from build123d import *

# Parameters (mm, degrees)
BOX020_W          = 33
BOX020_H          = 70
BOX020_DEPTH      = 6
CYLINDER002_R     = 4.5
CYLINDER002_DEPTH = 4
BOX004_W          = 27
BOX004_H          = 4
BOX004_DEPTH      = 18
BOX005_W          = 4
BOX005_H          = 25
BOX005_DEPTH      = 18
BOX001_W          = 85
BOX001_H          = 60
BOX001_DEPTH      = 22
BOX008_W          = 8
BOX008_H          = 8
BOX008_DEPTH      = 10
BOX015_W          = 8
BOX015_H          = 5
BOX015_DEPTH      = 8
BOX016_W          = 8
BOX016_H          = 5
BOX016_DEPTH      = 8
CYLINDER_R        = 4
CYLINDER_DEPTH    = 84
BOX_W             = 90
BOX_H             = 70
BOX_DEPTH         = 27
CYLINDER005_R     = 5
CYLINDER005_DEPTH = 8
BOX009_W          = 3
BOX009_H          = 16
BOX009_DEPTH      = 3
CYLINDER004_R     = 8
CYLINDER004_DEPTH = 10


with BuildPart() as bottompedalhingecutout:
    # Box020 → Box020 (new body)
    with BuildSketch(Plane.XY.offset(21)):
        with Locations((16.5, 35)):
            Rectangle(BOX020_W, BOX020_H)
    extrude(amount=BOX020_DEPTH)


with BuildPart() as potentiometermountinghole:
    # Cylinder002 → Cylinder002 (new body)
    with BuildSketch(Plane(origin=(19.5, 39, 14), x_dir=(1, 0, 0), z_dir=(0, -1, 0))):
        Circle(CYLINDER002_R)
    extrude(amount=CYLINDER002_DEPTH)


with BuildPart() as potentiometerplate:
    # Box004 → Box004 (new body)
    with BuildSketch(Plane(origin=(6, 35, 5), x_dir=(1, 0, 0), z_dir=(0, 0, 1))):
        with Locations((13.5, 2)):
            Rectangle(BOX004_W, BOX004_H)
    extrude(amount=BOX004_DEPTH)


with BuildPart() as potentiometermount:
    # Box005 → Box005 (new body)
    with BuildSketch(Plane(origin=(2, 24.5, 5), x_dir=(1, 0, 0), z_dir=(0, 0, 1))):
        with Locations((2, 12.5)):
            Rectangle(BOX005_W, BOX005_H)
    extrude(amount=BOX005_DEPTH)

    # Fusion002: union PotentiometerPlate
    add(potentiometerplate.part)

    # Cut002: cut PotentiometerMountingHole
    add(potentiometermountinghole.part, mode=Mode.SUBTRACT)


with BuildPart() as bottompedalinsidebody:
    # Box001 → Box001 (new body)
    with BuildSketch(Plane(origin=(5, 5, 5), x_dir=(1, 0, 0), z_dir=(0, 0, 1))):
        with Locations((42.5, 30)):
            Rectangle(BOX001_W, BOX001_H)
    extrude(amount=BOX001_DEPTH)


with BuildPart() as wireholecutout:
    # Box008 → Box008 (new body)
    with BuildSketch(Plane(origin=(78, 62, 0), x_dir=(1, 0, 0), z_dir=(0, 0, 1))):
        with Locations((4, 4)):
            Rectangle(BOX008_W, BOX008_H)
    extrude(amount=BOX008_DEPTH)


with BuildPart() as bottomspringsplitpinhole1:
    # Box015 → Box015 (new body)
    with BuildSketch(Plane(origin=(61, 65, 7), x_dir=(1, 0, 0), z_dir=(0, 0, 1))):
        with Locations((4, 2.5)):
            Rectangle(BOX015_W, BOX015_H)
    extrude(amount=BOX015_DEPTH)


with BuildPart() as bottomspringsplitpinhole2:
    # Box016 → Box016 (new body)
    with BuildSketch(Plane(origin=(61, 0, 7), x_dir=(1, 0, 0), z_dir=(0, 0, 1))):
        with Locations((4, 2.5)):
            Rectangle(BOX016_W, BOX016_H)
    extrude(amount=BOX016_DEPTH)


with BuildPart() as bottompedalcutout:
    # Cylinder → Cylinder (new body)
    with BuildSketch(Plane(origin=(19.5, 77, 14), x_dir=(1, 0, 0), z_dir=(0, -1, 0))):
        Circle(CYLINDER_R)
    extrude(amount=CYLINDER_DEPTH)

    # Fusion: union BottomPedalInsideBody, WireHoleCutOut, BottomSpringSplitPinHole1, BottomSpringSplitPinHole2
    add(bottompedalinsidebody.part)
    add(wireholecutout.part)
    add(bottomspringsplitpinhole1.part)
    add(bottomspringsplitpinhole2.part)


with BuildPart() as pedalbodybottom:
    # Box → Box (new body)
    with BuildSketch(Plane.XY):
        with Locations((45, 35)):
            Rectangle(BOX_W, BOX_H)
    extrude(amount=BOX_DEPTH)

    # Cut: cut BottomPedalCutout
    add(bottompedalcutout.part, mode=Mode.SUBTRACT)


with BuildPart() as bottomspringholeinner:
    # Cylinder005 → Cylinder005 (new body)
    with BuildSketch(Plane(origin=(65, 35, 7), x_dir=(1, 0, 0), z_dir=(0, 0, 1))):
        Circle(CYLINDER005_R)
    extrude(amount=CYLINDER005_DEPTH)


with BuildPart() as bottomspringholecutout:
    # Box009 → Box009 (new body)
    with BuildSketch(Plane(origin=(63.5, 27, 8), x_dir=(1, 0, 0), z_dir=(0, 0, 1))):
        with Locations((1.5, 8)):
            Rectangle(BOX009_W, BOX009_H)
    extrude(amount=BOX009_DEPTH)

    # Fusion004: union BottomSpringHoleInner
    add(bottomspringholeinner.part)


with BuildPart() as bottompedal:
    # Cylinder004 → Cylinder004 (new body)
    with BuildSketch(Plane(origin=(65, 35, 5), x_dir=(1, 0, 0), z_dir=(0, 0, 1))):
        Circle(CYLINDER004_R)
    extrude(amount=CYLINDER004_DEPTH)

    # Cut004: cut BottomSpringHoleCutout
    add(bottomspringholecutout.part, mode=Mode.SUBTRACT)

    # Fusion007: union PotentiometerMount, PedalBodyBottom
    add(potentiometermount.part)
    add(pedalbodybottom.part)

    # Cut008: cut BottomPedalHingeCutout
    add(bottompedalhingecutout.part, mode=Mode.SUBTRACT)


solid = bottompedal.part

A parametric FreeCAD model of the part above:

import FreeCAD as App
import Part
import Sketcher
from FreeCAD import Vector
Q = App.Units.Quantity

doc = App.newDocument("Part")
body = doc.addObject("PartDesign::Body", "Body")

# Sketch on XY plane
sketch1 = body.newObject("Sketcher::SketchObject", "Sketch")
sketch1.AttachmentSupport = (doc.getObject("XY_Plane"), [""])
sketch1.MapMode = "FlatFace"
sketch1.AttachmentOffset = App.Placement(Vector(0, 0, 21), App.Rotation())
sketch1.addGeometry(Part.LineSegment(Vector(0, 70, 0), Vector(0, 0, 0)), False)
sketch1.addGeometry(Part.LineSegment(Vector(0, 0, 0), Vector(33, 0, 0)), False)
sketch1.addGeometry(Part.LineSegment(Vector(33, 0, 0), Vector(33, 70, 0)), False)
sketch1.addGeometry(Part.LineSegment(Vector(33, 70, 0), Vector(0, 70, 0)), False)
sketch1.addConstraint(Sketcher.Constraint("Coincident", 0, 2, 1, 1))
sketch1.addConstraint(Sketcher.Constraint("Coincident", 1, 2, 2, 1))
sketch1.addConstraint(Sketcher.Constraint("Coincident", 2, 2, 3, 1))
sketch1.addConstraint(Sketcher.Constraint("Coincident", 3, 2, 0, 1))
sketch1.addConstraint(Sketcher.Constraint("Vertical", 0))
sketch1.addConstraint(Sketcher.Constraint("Horizontal", 1))
sketch1.addConstraint(Sketcher.Constraint("Vertical", 2))
sketch1.addConstraint(Sketcher.Constraint("Horizontal", 3))
sketch1.addConstraint(Sketcher.Constraint("Coincident", 0, 2, -1, 1))
sketch1.addConstraint(Sketcher.Constraint("DistanceX", 1, 1, 1, 2, Q("33 mm")))
sketch1.addConstraint(Sketcher.Constraint("DistanceY", 0, 2, 0, 1, Q("70 mm")))
pad1 = body.newObject("PartDesign::Pad", "Pad")
pad1.Profile = sketch1
pad1.Length = 6
body2 = doc.addObject("PartDesign::Body", "Body001")

# Sketch on XZ plane
sketch2 = body2.newObject("Sketcher::SketchObject", "Sketch001")
sketch2.AttachmentSupport = (doc.getObject("XZ_Plane001"), [""])
sketch2.MapMode = "FlatFace"
sketch2.AttachmentOffset = App.Placement(Vector(0, 0, -39), App.Rotation())
sketch2.addGeometry(Part.Circle(Vector(19.5, 14, 0), Vector(0, 0, 1), 4.5), False)
sketch2.addConstraint(Sketcher.Constraint("Diameter", 0, Q("9 mm")))
sketch2.addConstraint(Sketcher.Constraint("DistanceY", -1, 1, 0, 3, Q("14 mm")))
sketch2.addConstraint(Sketcher.Constraint("DistanceX", -1, 1, 0, 3, Q("19.5 mm")))
pad2 = body2.newObject("PartDesign::Pad", "Pad001")
pad2.Profile = sketch2
pad2.Length = 4
body3 = doc.addObject("PartDesign::Body", "Body002")

# Sketch on XY plane
sketch3 = body3.newObject("Sketcher::SketchObject", "Sketch002")
sketch3.AttachmentSupport = (doc.getObject("XY_Plane002"), [""])
sketch3.MapMode = "FlatFace"
sketch3.AttachmentOffset = App.Placement(Vector(0, 0, 5), App.Rotation())
sketch3.addGeometry(Part.LineSegment(Vector(6, 39, 0), Vector(6, 35, 0)), False)
sketch3.addGeometry(Part.LineSegment(Vector(6, 35, 0), Vector(33, 35, 0)), False)
sketch3.addGeometry(Part.LineSegment(Vector(33, 35, 0), Vector(33, 39, 0)), False)
sketch3.addGeometry(Part.LineSegment(Vector(33, 39, 0), Vector(6, 39, 0)), False)
sketch3.addConstraint(Sketcher.Constraint("Coincident", 0, 2, 1, 1))
sketch3.addConstraint(Sketcher.Constraint("Coincident", 1, 2, 2, 1))
sketch3.addConstraint(Sketcher.Constraint("Coincident", 2, 2, 3, 1))
sketch3.addConstraint(Sketcher.Constraint("Coincident", 3, 2, 0, 1))
sketch3.addConstraint(Sketcher.Constraint("Vertical", 0))
sketch3.addConstraint(Sketcher.Constraint("Horizontal", 1))
sketch3.addConstraint(Sketcher.Constraint("Vertical", 2))
sketch3.addConstraint(Sketcher.Constraint("Horizontal", 3))
sketch3.addConstraint(Sketcher.Constraint("DistanceX", 1, 1, 1, 2, Q("27 mm")))
sketch3.addConstraint(Sketcher.Constraint("DistanceY", 0, 2, 0, 1, Q("4 mm")))
sketch3.addConstraint(Sketcher.Constraint("DistanceX", -1, 1, 0, 2, Q("6 mm")))
sketch3.addConstraint(Sketcher.Constraint("DistanceY", -1, 1, 0, 2, Q("35 mm")))
pad3 = body3.newObject("PartDesign::Pad", "Pad002")
pad3.Profile = sketch3
pad3.Length = 18
body4 = doc.addObject("PartDesign::Body", "Body003")

# Sketch on XY plane
sketch4 = body4.newObject("Sketcher::SketchObject", "Sketch003")
sketch4.AttachmentSupport = (doc.getObject("XY_Plane003"), [""])
sketch4.MapMode = "FlatFace"
sketch4.AttachmentOffset = App.Placement(Vector(0, 0, 5), App.Rotation())
sketch4.addGeometry(Part.LineSegment(Vector(2, 49.5, 0), Vector(2, 24.5, 0)), False)
sketch4.addGeometry(Part.LineSegment(Vector(2, 24.5, 0), Vector(6, 24.5, 0)), False)
sketch4.addGeometry(Part.LineSegment(Vector(6, 24.5, 0), Vector(6, 49.5, 0)), False)
sketch4.addGeometry(Part.LineSegment(Vector(6, 49.5, 0), Vector(2, 49.5, 0)), False)
sketch4.addConstraint(Sketcher.Constraint("Coincident", 0, 2, 1, 1))
sketch4.addConstraint(Sketcher.Constraint("Coincident", 1, 2, 2, 1))
sketch4.addConstraint(Sketcher.Constraint("Coincident", 2, 2, 3, 1))
sketch4.addConstraint(Sketcher.Constraint("Coincident", 3, 2, 0, 1))
sketch4.addConstraint(Sketcher.Constraint("Vertical", 0))
sketch4.addConstraint(Sketcher.Constraint("Horizontal", 1))
sketch4.addConstraint(Sketcher.Constraint("Vertical", 2))
sketch4.addConstraint(Sketcher.Constraint("Horizontal", 3))
sketch4.addConstraint(Sketcher.Constraint("DistanceX", 1, 1, 1, 2, Q("4 mm")))
sketch4.addConstraint(Sketcher.Constraint("DistanceY", 0, 2, 0, 1, Q("25 mm")))
sketch4.addConstraint(Sketcher.Constraint("DistanceX", -1, 1, 0, 2, Q("2 mm")))
sketch4.addConstraint(Sketcher.Constraint("DistanceY", -1, 1, 0, 2, Q("24.5 mm")))
pad4 = body4.newObject("PartDesign::Pad", "Pad003")
pad4.Profile = sketch4
pad4.Length = 18
doc.recompute()

boolean = body4.newObject("PartDesign::Boolean", "Boolean")
boolean.Type = "Fuse"
boolean.addObjects([body3])
doc.recompute()

boolean2 = body4.newObject("PartDesign::Boolean", "Boolean001")
boolean2.Type = "Cut"
boolean2.addObjects([body2])
body5 = doc.addObject("PartDesign::Body", "Body004")

# Sketch on XY plane
sketch5 = body5.newObject("Sketcher::SketchObject", "Sketch004")
sketch5.AttachmentSupport = (doc.getObject("XY_Plane004"), [""])
sketch5.MapMode = "FlatFace"
sketch5.AttachmentOffset = App.Placement(Vector(0, 0, 5), App.Rotation())
sketch5.addGeometry(Part.LineSegment(Vector(5, 65, 0), Vector(5, 5, 0)), False)
sketch5.addGeometry(Part.LineSegment(Vector(5, 5, 0), Vector(90, 5, 0)), False)
sketch5.addGeometry(Part.LineSegment(Vector(90, 5, 0), Vector(90, 65, 0)), False)
sketch5.addGeometry(Part.LineSegment(Vector(90, 65, 0), Vector(5, 65, 0)), False)
sketch5.addConstraint(Sketcher.Constraint("Coincident", 0, 2, 1, 1))
sketch5.addConstraint(Sketcher.Constraint("Coincident", 1, 2, 2, 1))
sketch5.addConstraint(Sketcher.Constraint("Coincident", 2, 2, 3, 1))
sketch5.addConstraint(Sketcher.Constraint("Coincident", 3, 2, 0, 1))
sketch5.addConstraint(Sketcher.Constraint("Vertical", 0))
sketch5.addConstraint(Sketcher.Constraint("Horizontal", 1))
sketch5.addConstraint(Sketcher.Constraint("Vertical", 2))
sketch5.addConstraint(Sketcher.Constraint("Horizontal", 3))
sketch5.addConstraint(Sketcher.Constraint("DistanceX", 1, 1, 1, 2, Q("85 mm")))
sketch5.addConstraint(Sketcher.Constraint("DistanceY", 0, 2, 0, 1, Q("60 mm")))
sketch5.addConstraint(Sketcher.Constraint("DistanceX", -1, 1, 0, 2, Q("5 mm")))
sketch5.addConstraint(Sketcher.Constraint("DistanceY", -1, 1, 0, 2, Q("5 mm")))
pad5 = body5.newObject("PartDesign::Pad", "Pad004")
pad5.Profile = sketch5
pad5.Length = 22
body6 = doc.addObject("PartDesign::Body", "Body005")

# Sketch on XY plane
sketch6 = body6.newObject("Sketcher::SketchObject", "Sketch005")
sketch6.AttachmentSupport = (doc.getObject("XY_Plane005"), [""])
sketch6.MapMode = "FlatFace"
sketch6.addGeometry(Part.LineSegment(Vector(78, 70, 0), Vector(78, 62, 0)), False)
sketch6.addGeometry(Part.LineSegment(Vector(78, 62, 0), Vector(86, 62, 0)), False)
sketch6.addGeometry(Part.LineSegment(Vector(86, 62, 0), Vector(86, 70, 0)), False)
sketch6.addGeometry(Part.LineSegment(Vector(86, 70, 0), Vector(78, 70, 0)), False)
sketch6.addConstraint(Sketcher.Constraint("Coincident", 0, 2, 1, 1))
sketch6.addConstraint(Sketcher.Constraint("Coincident", 1, 2, 2, 1))
sketch6.addConstraint(Sketcher.Constraint("Coincident", 2, 2, 3, 1))
sketch6.addConstraint(Sketcher.Constraint("Coincident", 3, 2, 0, 1))
sketch6.addConstraint(Sketcher.Constraint("Vertical", 0))
sketch6.addConstraint(Sketcher.Constraint("Horizontal", 1))
sketch6.addConstraint(Sketcher.Constraint("Vertical", 2))
sketch6.addConstraint(Sketcher.Constraint("Horizontal", 3))
sketch6.addConstraint(Sketcher.Constraint("Equal", 3, 0))
sketch6.addConstraint(Sketcher.Constraint("DistanceX", 1, 1, 1, 2, Q("8 mm")))
sketch6.addConstraint(Sketcher.Constraint("DistanceX", -1, 1, 0, 2, Q("78 mm")))
sketch6.addConstraint(Sketcher.Constraint("DistanceY", -1, 1, 0, 2, Q("62 mm")))
pad6 = body6.newObject("PartDesign::Pad", "Pad005")
pad6.Profile = sketch6
pad6.Length = 10
body7 = doc.addObject("PartDesign::Body", "Body006")

# Sketch on XY plane
sketch7 = body7.newObject("Sketcher::SketchObject", "Sketch006")
sketch7.AttachmentSupport = (doc.getObject("XY_Plane006"), [""])
sketch7.MapMode = "FlatFace"
sketch7.AttachmentOffset = App.Placement(Vector(0, 0, 7), App.Rotation())
sketch7.addGeometry(Part.LineSegment(Vector(61, 70, 0), Vector(61, 65, 0)), False)
sketch7.addGeometry(Part.LineSegment(Vector(61, 65, 0), Vector(69, 65, 0)), False)
sketch7.addGeometry(Part.LineSegment(Vector(69, 65, 0), Vector(69, 70, 0)), False)
sketch7.addGeometry(Part.LineSegment(Vector(69, 70, 0), Vector(61, 70, 0)), False)
sketch7.addConstraint(Sketcher.Constraint("Coincident", 0, 2, 1, 1))
sketch7.addConstraint(Sketcher.Constraint("Coincident", 1, 2, 2, 1))
sketch7.addConstraint(Sketcher.Constraint("Coincident", 2, 2, 3, 1))
sketch7.addConstraint(Sketcher.Constraint("Coincident", 3, 2, 0, 1))
sketch7.addConstraint(Sketcher.Constraint("Vertical", 0))
sketch7.addConstraint(Sketcher.Constraint("Horizontal", 1))
sketch7.addConstraint(Sketcher.Constraint("Vertical", 2))
sketch7.addConstraint(Sketcher.Constraint("Horizontal", 3))
sketch7.addConstraint(Sketcher.Constraint("DistanceX", 1, 1, 1, 2, Q("8 mm")))
sketch7.addConstraint(Sketcher.Constraint("DistanceY", 0, 2, 0, 1, Q("5 mm")))
sketch7.addConstraint(Sketcher.Constraint("DistanceX", -1, 1, 0, 2, Q("61 mm")))
sketch7.addConstraint(Sketcher.Constraint("DistanceY", -1, 1, 0, 2, Q("65 mm")))
pad7 = body7.newObject("PartDesign::Pad", "Pad006")
pad7.Profile = sketch7
pad7.Length = 8
body8 = doc.addObject("PartDesign::Body", "Body007")

# Sketch on XY plane
sketch8 = body8.newObject("Sketcher::SketchObject", "Sketch007")
sketch8.AttachmentSupport = (doc.getObject("XY_Plane007"), [""])
sketch8.MapMode = "FlatFace"
sketch8.AttachmentOffset = App.Placement(Vector(0, 0, 7), App.Rotation())
sketch8.addGeometry(Part.LineSegment(Vector(61, 5, 0), Vector(61, 0, 0)), False)
sketch8.addGeometry(Part.LineSegment(Vector(61, 0, 0), Vector(69, 0, 0)), False)
sketch8.addGeometry(Part.LineSegment(Vector(69, 0, 0), Vector(69, 5, 0)), False)
sketch8.addGeometry(Part.LineSegment(Vector(69, 5, 0), Vector(61, 5, 0)), False)
sketch8.addConstraint(Sketcher.Constraint("Coincident", 0, 2, 1, 1))
sketch8.addConstraint(Sketcher.Constraint("Coincident", 1, 2, 2, 1))
sketch8.addConstraint(Sketcher.Constraint("Coincident", 2, 2, 3, 1))
sketch8.addConstraint(Sketcher.Constraint("Coincident", 3, 2, 0, 1))
sketch8.addConstraint(Sketcher.Constraint("Vertical", 0))
sketch8.addConstraint(Sketcher.Constraint("Horizontal", 1))
sketch8.addConstraint(Sketcher.Constraint("Vertical", 2))
sketch8.addConstraint(Sketcher.Constraint("Horizontal", 3))
sketch8.addConstraint(Sketcher.Constraint("PointOnObject", 0, 2, -1))
sketch8.addConstraint(Sketcher.Constraint("DistanceX", 1, 1, 1, 2, Q("8 mm")))
sketch8.addConstraint(Sketcher.Constraint("DistanceY", 0, 2, 0, 1, Q("5 mm")))
sketch8.addConstraint(Sketcher.Constraint("DistanceX", -1, 1, 0, 2, Q("61 mm")))
pad8 = body8.newObject("PartDesign::Pad", "Pad007")
pad8.Profile = sketch8
pad8.Length = 8
body9 = doc.addObject("PartDesign::Body", "Body008")

# Sketch on XZ plane
sketch9 = body9.newObject("Sketcher::SketchObject", "Sketch008")
sketch9.AttachmentSupport = (doc.getObject("XZ_Plane008"), [""])
sketch9.MapMode = "FlatFace"
sketch9.AttachmentOffset = App.Placement(Vector(0, 0, -77), App.Rotation())
sketch9.addGeometry(Part.Circle(Vector(19.5, 14, 0), Vector(0, 0, 1), 4), False)
sketch9.addConstraint(Sketcher.Constraint("Diameter", 0, Q("8 mm")))
sketch9.addConstraint(Sketcher.Constraint("DistanceY", -1, 1, 0, 3, Q("14 mm")))
sketch9.addConstraint(Sketcher.Constraint("DistanceX", -1, 1, 0, 3, Q("19.5 mm")))
pad9 = body9.newObject("PartDesign::Pad", "Pad008")
pad9.Profile = sketch9
pad9.Length = 84
doc.recompute()

boolean3 = body9.newObject("PartDesign::Boolean", "Boolean002")
boolean3.Type = "Fuse"
boolean3.addObjects([body5])
doc.recompute()

boolean4 = body9.newObject("PartDesign::Boolean", "Boolean003")
boolean4.Type = "Fuse"
boolean4.addObjects([body6])
doc.recompute()

boolean5 = body9.newObject("PartDesign::Boolean", "Boolean004")
boolean5.Type = "Fuse"
boolean5.addObjects([body7])
doc.recompute()

boolean6 = body9.newObject("PartDesign::Boolean", "Boolean005")
boolean6.Type = "Fuse"
boolean6.addObjects([body8])
body10 = doc.addObject("PartDesign::Body", "Body009")

# Sketch on XY plane
sketch10 = body10.newObject("Sketcher::SketchObject", "Sketch009")
sketch10.AttachmentSupport = (doc.getObject("XY_Plane009"), [""])
sketch10.MapMode = "FlatFace"
sketch10.addGeometry(Part.LineSegment(Vector(0, 70, 0), Vector(0, 0, 0)), False)
sketch10.addGeometry(Part.LineSegment(Vector(0, 0, 0), Vector(90, 0, 0)), False)
sketch10.addGeometry(Part.LineSegment(Vector(90, 0, 0), Vector(90, 70, 0)), False)
sketch10.addGeometry(Part.LineSegment(Vector(90, 70, 0), Vector(0, 70, 0)), False)
sketch10.addConstraint(Sketcher.Constraint("Coincident", 0, 2, 1, 1))
sketch10.addConstraint(Sketcher.Constraint("Coincident", 1, 2, 2, 1))
sketch10.addConstraint(Sketcher.Constraint("Coincident", 2, 2, 3, 1))
sketch10.addConstraint(Sketcher.Constraint("Coincident", 3, 2, 0, 1))
sketch10.addConstraint(Sketcher.Constraint("Vertical", 0))
sketch10.addConstraint(Sketcher.Constraint("Horizontal", 1))
sketch10.addConstraint(Sketcher.Constraint("Vertical", 2))
sketch10.addConstraint(Sketcher.Constraint("Horizontal", 3))
sketch10.addConstraint(Sketcher.Constraint("Coincident", 0, 2, -1, 1))
sketch10.addConstraint(Sketcher.Constraint("DistanceX", 1, 1, 1, 2, Q("90 mm")))
sketch10.addConstraint(Sketcher.Constraint("DistanceY", 0, 2, 0, 1, Q("70 mm")))
pad10 = body10.newObject("PartDesign::Pad", "Pad009")
pad10.Profile = sketch10
pad10.Length = 27
doc.recompute()

boolean7 = body10.newObject("PartDesign::Boolean", "Boolean006")
boolean7.Type = "Cut"
boolean7.addObjects([body9])
body11 = doc.addObject("PartDesign::Body", "Body010")

# Sketch on XY plane
sketch11 = body11.newObject("Sketcher::SketchObject", "Sketch010")
sketch11.AttachmentSupport = (doc.getObject("XY_Plane010"), [""])
sketch11.MapMode = "FlatFace"
sketch11.AttachmentOffset = App.Placement(Vector(0, 0, 7), App.Rotation())
sketch11.addGeometry(Part.Circle(Vector(65, 35, 0), Vector(0, 0, 1), 5), False)
sketch11.addConstraint(Sketcher.Constraint("Diameter", 0, Q("10 mm")))
sketch11.addConstraint(Sketcher.Constraint("DistanceX", -1, 1, 0, 3, Q("65 mm")))
sketch11.addConstraint(Sketcher.Constraint("DistanceY", -1, 1, 0, 3, Q("35 mm")))
pad11 = body11.newObject("PartDesign::Pad", "Pad010")
pad11.Profile = sketch11
pad11.Length = 8
body12 = doc.addObject("PartDesign::Body", "Body011")

# Sketch on XY plane
sketch12 = body12.newObject("Sketcher::SketchObject", "Sketch011")
sketch12.AttachmentSupport = (doc.getObject("XY_Plane011"), [""])
sketch12.MapMode = "FlatFace"
sketch12.AttachmentOffset = App.Placement(Vector(0, 0, 8), App.Rotation())
sketch12.addGeometry(Part.LineSegment(Vector(63.5, 43, 0), Vector(63.5, 27, 0)), False)
sketch12.addGeometry(Part.LineSegment(Vector(63.5, 27, 0), Vector(66.5, 27, 0)), False)
sketch12.addGeometry(Part.LineSegment(Vector(66.5, 27, 0), Vector(66.5, 43, 0)), False)
sketch12.addGeometry(Part.LineSegment(Vector(66.5, 43, 0), Vector(63.5, 43, 0)), False)
sketch12.addConstraint(Sketcher.Constraint("Coincident", 0, 2, 1, 1))
sketch12.addConstraint(Sketcher.Constraint("Coincident", 1, 2, 2, 1))
sketch12.addConstraint(Sketcher.Constraint("Coincident", 2, 2, 3, 1))
sketch12.addConstraint(Sketcher.Constraint("Coincident", 3, 2, 0, 1))
sketch12.addConstraint(Sketcher.Constraint("Vertical", 0))
sketch12.addConstraint(Sketcher.Constraint("Horizontal", 1))
sketch12.addConstraint(Sketcher.Constraint("Vertical", 2))
sketch12.addConstraint(Sketcher.Constraint("Horizontal", 3))
sketch12.addConstraint(Sketcher.Constraint("DistanceX", 1, 1, 1, 2, Q("3 mm")))
sketch12.addConstraint(Sketcher.Constraint("DistanceY", 0, 2, 0, 1, Q("16 mm")))
sketch12.addConstraint(Sketcher.Constraint("DistanceY", -1, 1, 0, 2, Q("27 mm")))
sketch12.addConstraint(Sketcher.Constraint("DistanceX", -1, 1, 0, 2, Q("63.5 mm")))
pad12 = body12.newObject("PartDesign::Pad", "Pad011")
pad12.Profile = sketch12
pad12.Length = 3
doc.recompute()

boolean8 = body12.newObject("PartDesign::Boolean", "Boolean007")
boolean8.Type = "Fuse"
boolean8.addObjects([body11])
body13 = doc.addObject("PartDesign::Body", "Body012")
body13.AllowCompound = True

# Sketch on XY plane
sketch13 = body13.newObject("Sketcher::SketchObject", "Sketch012")
sketch13.AttachmentSupport = (doc.getObject("XY_Plane012"), [""])
sketch13.MapMode = "FlatFace"
sketch13.AttachmentOffset = App.Placement(Vector(0, 0, 5), App.Rotation())
sketch13.addGeometry(Part.Circle(Vector(65, 35, 0), Vector(0, 0, 1), 8), False)
sketch13.addConstraint(Sketcher.Constraint("Diameter", 0, Q("16 mm")))
sketch13.addConstraint(Sketcher.Constraint("DistanceX", -1, 1, 0, 3, Q("65 mm")))
sketch13.addConstraint(Sketcher.Constraint("DistanceY", -1, 1, 0, 3, Q("35 mm")))
pad13 = body13.newObject("PartDesign::Pad", "Pad012")
pad13.Profile = sketch13
pad13.Length = 10
doc.recompute()

boolean9 = body13.newObject("PartDesign::Boolean", "Boolean008")
boolean9.Type = "Cut"
boolean9.addObjects([body12])
doc.recompute()

boolean10 = body13.newObject("PartDesign::Boolean", "Boolean009")
boolean10.Type = "Fuse"
boolean10.addObjects([body4])
doc.recompute()

boolean11 = body13.newObject("PartDesign::Boolean", "Boolean010")
boolean11.Type = "Fuse"
boolean11.addObjects([body10])
doc.recompute()

boolean12 = body13.newObject("PartDesign::Boolean", "Boolean011")
boolean12.Type = "Cut"
boolean12.addObjects([body])

doc.recompute()
